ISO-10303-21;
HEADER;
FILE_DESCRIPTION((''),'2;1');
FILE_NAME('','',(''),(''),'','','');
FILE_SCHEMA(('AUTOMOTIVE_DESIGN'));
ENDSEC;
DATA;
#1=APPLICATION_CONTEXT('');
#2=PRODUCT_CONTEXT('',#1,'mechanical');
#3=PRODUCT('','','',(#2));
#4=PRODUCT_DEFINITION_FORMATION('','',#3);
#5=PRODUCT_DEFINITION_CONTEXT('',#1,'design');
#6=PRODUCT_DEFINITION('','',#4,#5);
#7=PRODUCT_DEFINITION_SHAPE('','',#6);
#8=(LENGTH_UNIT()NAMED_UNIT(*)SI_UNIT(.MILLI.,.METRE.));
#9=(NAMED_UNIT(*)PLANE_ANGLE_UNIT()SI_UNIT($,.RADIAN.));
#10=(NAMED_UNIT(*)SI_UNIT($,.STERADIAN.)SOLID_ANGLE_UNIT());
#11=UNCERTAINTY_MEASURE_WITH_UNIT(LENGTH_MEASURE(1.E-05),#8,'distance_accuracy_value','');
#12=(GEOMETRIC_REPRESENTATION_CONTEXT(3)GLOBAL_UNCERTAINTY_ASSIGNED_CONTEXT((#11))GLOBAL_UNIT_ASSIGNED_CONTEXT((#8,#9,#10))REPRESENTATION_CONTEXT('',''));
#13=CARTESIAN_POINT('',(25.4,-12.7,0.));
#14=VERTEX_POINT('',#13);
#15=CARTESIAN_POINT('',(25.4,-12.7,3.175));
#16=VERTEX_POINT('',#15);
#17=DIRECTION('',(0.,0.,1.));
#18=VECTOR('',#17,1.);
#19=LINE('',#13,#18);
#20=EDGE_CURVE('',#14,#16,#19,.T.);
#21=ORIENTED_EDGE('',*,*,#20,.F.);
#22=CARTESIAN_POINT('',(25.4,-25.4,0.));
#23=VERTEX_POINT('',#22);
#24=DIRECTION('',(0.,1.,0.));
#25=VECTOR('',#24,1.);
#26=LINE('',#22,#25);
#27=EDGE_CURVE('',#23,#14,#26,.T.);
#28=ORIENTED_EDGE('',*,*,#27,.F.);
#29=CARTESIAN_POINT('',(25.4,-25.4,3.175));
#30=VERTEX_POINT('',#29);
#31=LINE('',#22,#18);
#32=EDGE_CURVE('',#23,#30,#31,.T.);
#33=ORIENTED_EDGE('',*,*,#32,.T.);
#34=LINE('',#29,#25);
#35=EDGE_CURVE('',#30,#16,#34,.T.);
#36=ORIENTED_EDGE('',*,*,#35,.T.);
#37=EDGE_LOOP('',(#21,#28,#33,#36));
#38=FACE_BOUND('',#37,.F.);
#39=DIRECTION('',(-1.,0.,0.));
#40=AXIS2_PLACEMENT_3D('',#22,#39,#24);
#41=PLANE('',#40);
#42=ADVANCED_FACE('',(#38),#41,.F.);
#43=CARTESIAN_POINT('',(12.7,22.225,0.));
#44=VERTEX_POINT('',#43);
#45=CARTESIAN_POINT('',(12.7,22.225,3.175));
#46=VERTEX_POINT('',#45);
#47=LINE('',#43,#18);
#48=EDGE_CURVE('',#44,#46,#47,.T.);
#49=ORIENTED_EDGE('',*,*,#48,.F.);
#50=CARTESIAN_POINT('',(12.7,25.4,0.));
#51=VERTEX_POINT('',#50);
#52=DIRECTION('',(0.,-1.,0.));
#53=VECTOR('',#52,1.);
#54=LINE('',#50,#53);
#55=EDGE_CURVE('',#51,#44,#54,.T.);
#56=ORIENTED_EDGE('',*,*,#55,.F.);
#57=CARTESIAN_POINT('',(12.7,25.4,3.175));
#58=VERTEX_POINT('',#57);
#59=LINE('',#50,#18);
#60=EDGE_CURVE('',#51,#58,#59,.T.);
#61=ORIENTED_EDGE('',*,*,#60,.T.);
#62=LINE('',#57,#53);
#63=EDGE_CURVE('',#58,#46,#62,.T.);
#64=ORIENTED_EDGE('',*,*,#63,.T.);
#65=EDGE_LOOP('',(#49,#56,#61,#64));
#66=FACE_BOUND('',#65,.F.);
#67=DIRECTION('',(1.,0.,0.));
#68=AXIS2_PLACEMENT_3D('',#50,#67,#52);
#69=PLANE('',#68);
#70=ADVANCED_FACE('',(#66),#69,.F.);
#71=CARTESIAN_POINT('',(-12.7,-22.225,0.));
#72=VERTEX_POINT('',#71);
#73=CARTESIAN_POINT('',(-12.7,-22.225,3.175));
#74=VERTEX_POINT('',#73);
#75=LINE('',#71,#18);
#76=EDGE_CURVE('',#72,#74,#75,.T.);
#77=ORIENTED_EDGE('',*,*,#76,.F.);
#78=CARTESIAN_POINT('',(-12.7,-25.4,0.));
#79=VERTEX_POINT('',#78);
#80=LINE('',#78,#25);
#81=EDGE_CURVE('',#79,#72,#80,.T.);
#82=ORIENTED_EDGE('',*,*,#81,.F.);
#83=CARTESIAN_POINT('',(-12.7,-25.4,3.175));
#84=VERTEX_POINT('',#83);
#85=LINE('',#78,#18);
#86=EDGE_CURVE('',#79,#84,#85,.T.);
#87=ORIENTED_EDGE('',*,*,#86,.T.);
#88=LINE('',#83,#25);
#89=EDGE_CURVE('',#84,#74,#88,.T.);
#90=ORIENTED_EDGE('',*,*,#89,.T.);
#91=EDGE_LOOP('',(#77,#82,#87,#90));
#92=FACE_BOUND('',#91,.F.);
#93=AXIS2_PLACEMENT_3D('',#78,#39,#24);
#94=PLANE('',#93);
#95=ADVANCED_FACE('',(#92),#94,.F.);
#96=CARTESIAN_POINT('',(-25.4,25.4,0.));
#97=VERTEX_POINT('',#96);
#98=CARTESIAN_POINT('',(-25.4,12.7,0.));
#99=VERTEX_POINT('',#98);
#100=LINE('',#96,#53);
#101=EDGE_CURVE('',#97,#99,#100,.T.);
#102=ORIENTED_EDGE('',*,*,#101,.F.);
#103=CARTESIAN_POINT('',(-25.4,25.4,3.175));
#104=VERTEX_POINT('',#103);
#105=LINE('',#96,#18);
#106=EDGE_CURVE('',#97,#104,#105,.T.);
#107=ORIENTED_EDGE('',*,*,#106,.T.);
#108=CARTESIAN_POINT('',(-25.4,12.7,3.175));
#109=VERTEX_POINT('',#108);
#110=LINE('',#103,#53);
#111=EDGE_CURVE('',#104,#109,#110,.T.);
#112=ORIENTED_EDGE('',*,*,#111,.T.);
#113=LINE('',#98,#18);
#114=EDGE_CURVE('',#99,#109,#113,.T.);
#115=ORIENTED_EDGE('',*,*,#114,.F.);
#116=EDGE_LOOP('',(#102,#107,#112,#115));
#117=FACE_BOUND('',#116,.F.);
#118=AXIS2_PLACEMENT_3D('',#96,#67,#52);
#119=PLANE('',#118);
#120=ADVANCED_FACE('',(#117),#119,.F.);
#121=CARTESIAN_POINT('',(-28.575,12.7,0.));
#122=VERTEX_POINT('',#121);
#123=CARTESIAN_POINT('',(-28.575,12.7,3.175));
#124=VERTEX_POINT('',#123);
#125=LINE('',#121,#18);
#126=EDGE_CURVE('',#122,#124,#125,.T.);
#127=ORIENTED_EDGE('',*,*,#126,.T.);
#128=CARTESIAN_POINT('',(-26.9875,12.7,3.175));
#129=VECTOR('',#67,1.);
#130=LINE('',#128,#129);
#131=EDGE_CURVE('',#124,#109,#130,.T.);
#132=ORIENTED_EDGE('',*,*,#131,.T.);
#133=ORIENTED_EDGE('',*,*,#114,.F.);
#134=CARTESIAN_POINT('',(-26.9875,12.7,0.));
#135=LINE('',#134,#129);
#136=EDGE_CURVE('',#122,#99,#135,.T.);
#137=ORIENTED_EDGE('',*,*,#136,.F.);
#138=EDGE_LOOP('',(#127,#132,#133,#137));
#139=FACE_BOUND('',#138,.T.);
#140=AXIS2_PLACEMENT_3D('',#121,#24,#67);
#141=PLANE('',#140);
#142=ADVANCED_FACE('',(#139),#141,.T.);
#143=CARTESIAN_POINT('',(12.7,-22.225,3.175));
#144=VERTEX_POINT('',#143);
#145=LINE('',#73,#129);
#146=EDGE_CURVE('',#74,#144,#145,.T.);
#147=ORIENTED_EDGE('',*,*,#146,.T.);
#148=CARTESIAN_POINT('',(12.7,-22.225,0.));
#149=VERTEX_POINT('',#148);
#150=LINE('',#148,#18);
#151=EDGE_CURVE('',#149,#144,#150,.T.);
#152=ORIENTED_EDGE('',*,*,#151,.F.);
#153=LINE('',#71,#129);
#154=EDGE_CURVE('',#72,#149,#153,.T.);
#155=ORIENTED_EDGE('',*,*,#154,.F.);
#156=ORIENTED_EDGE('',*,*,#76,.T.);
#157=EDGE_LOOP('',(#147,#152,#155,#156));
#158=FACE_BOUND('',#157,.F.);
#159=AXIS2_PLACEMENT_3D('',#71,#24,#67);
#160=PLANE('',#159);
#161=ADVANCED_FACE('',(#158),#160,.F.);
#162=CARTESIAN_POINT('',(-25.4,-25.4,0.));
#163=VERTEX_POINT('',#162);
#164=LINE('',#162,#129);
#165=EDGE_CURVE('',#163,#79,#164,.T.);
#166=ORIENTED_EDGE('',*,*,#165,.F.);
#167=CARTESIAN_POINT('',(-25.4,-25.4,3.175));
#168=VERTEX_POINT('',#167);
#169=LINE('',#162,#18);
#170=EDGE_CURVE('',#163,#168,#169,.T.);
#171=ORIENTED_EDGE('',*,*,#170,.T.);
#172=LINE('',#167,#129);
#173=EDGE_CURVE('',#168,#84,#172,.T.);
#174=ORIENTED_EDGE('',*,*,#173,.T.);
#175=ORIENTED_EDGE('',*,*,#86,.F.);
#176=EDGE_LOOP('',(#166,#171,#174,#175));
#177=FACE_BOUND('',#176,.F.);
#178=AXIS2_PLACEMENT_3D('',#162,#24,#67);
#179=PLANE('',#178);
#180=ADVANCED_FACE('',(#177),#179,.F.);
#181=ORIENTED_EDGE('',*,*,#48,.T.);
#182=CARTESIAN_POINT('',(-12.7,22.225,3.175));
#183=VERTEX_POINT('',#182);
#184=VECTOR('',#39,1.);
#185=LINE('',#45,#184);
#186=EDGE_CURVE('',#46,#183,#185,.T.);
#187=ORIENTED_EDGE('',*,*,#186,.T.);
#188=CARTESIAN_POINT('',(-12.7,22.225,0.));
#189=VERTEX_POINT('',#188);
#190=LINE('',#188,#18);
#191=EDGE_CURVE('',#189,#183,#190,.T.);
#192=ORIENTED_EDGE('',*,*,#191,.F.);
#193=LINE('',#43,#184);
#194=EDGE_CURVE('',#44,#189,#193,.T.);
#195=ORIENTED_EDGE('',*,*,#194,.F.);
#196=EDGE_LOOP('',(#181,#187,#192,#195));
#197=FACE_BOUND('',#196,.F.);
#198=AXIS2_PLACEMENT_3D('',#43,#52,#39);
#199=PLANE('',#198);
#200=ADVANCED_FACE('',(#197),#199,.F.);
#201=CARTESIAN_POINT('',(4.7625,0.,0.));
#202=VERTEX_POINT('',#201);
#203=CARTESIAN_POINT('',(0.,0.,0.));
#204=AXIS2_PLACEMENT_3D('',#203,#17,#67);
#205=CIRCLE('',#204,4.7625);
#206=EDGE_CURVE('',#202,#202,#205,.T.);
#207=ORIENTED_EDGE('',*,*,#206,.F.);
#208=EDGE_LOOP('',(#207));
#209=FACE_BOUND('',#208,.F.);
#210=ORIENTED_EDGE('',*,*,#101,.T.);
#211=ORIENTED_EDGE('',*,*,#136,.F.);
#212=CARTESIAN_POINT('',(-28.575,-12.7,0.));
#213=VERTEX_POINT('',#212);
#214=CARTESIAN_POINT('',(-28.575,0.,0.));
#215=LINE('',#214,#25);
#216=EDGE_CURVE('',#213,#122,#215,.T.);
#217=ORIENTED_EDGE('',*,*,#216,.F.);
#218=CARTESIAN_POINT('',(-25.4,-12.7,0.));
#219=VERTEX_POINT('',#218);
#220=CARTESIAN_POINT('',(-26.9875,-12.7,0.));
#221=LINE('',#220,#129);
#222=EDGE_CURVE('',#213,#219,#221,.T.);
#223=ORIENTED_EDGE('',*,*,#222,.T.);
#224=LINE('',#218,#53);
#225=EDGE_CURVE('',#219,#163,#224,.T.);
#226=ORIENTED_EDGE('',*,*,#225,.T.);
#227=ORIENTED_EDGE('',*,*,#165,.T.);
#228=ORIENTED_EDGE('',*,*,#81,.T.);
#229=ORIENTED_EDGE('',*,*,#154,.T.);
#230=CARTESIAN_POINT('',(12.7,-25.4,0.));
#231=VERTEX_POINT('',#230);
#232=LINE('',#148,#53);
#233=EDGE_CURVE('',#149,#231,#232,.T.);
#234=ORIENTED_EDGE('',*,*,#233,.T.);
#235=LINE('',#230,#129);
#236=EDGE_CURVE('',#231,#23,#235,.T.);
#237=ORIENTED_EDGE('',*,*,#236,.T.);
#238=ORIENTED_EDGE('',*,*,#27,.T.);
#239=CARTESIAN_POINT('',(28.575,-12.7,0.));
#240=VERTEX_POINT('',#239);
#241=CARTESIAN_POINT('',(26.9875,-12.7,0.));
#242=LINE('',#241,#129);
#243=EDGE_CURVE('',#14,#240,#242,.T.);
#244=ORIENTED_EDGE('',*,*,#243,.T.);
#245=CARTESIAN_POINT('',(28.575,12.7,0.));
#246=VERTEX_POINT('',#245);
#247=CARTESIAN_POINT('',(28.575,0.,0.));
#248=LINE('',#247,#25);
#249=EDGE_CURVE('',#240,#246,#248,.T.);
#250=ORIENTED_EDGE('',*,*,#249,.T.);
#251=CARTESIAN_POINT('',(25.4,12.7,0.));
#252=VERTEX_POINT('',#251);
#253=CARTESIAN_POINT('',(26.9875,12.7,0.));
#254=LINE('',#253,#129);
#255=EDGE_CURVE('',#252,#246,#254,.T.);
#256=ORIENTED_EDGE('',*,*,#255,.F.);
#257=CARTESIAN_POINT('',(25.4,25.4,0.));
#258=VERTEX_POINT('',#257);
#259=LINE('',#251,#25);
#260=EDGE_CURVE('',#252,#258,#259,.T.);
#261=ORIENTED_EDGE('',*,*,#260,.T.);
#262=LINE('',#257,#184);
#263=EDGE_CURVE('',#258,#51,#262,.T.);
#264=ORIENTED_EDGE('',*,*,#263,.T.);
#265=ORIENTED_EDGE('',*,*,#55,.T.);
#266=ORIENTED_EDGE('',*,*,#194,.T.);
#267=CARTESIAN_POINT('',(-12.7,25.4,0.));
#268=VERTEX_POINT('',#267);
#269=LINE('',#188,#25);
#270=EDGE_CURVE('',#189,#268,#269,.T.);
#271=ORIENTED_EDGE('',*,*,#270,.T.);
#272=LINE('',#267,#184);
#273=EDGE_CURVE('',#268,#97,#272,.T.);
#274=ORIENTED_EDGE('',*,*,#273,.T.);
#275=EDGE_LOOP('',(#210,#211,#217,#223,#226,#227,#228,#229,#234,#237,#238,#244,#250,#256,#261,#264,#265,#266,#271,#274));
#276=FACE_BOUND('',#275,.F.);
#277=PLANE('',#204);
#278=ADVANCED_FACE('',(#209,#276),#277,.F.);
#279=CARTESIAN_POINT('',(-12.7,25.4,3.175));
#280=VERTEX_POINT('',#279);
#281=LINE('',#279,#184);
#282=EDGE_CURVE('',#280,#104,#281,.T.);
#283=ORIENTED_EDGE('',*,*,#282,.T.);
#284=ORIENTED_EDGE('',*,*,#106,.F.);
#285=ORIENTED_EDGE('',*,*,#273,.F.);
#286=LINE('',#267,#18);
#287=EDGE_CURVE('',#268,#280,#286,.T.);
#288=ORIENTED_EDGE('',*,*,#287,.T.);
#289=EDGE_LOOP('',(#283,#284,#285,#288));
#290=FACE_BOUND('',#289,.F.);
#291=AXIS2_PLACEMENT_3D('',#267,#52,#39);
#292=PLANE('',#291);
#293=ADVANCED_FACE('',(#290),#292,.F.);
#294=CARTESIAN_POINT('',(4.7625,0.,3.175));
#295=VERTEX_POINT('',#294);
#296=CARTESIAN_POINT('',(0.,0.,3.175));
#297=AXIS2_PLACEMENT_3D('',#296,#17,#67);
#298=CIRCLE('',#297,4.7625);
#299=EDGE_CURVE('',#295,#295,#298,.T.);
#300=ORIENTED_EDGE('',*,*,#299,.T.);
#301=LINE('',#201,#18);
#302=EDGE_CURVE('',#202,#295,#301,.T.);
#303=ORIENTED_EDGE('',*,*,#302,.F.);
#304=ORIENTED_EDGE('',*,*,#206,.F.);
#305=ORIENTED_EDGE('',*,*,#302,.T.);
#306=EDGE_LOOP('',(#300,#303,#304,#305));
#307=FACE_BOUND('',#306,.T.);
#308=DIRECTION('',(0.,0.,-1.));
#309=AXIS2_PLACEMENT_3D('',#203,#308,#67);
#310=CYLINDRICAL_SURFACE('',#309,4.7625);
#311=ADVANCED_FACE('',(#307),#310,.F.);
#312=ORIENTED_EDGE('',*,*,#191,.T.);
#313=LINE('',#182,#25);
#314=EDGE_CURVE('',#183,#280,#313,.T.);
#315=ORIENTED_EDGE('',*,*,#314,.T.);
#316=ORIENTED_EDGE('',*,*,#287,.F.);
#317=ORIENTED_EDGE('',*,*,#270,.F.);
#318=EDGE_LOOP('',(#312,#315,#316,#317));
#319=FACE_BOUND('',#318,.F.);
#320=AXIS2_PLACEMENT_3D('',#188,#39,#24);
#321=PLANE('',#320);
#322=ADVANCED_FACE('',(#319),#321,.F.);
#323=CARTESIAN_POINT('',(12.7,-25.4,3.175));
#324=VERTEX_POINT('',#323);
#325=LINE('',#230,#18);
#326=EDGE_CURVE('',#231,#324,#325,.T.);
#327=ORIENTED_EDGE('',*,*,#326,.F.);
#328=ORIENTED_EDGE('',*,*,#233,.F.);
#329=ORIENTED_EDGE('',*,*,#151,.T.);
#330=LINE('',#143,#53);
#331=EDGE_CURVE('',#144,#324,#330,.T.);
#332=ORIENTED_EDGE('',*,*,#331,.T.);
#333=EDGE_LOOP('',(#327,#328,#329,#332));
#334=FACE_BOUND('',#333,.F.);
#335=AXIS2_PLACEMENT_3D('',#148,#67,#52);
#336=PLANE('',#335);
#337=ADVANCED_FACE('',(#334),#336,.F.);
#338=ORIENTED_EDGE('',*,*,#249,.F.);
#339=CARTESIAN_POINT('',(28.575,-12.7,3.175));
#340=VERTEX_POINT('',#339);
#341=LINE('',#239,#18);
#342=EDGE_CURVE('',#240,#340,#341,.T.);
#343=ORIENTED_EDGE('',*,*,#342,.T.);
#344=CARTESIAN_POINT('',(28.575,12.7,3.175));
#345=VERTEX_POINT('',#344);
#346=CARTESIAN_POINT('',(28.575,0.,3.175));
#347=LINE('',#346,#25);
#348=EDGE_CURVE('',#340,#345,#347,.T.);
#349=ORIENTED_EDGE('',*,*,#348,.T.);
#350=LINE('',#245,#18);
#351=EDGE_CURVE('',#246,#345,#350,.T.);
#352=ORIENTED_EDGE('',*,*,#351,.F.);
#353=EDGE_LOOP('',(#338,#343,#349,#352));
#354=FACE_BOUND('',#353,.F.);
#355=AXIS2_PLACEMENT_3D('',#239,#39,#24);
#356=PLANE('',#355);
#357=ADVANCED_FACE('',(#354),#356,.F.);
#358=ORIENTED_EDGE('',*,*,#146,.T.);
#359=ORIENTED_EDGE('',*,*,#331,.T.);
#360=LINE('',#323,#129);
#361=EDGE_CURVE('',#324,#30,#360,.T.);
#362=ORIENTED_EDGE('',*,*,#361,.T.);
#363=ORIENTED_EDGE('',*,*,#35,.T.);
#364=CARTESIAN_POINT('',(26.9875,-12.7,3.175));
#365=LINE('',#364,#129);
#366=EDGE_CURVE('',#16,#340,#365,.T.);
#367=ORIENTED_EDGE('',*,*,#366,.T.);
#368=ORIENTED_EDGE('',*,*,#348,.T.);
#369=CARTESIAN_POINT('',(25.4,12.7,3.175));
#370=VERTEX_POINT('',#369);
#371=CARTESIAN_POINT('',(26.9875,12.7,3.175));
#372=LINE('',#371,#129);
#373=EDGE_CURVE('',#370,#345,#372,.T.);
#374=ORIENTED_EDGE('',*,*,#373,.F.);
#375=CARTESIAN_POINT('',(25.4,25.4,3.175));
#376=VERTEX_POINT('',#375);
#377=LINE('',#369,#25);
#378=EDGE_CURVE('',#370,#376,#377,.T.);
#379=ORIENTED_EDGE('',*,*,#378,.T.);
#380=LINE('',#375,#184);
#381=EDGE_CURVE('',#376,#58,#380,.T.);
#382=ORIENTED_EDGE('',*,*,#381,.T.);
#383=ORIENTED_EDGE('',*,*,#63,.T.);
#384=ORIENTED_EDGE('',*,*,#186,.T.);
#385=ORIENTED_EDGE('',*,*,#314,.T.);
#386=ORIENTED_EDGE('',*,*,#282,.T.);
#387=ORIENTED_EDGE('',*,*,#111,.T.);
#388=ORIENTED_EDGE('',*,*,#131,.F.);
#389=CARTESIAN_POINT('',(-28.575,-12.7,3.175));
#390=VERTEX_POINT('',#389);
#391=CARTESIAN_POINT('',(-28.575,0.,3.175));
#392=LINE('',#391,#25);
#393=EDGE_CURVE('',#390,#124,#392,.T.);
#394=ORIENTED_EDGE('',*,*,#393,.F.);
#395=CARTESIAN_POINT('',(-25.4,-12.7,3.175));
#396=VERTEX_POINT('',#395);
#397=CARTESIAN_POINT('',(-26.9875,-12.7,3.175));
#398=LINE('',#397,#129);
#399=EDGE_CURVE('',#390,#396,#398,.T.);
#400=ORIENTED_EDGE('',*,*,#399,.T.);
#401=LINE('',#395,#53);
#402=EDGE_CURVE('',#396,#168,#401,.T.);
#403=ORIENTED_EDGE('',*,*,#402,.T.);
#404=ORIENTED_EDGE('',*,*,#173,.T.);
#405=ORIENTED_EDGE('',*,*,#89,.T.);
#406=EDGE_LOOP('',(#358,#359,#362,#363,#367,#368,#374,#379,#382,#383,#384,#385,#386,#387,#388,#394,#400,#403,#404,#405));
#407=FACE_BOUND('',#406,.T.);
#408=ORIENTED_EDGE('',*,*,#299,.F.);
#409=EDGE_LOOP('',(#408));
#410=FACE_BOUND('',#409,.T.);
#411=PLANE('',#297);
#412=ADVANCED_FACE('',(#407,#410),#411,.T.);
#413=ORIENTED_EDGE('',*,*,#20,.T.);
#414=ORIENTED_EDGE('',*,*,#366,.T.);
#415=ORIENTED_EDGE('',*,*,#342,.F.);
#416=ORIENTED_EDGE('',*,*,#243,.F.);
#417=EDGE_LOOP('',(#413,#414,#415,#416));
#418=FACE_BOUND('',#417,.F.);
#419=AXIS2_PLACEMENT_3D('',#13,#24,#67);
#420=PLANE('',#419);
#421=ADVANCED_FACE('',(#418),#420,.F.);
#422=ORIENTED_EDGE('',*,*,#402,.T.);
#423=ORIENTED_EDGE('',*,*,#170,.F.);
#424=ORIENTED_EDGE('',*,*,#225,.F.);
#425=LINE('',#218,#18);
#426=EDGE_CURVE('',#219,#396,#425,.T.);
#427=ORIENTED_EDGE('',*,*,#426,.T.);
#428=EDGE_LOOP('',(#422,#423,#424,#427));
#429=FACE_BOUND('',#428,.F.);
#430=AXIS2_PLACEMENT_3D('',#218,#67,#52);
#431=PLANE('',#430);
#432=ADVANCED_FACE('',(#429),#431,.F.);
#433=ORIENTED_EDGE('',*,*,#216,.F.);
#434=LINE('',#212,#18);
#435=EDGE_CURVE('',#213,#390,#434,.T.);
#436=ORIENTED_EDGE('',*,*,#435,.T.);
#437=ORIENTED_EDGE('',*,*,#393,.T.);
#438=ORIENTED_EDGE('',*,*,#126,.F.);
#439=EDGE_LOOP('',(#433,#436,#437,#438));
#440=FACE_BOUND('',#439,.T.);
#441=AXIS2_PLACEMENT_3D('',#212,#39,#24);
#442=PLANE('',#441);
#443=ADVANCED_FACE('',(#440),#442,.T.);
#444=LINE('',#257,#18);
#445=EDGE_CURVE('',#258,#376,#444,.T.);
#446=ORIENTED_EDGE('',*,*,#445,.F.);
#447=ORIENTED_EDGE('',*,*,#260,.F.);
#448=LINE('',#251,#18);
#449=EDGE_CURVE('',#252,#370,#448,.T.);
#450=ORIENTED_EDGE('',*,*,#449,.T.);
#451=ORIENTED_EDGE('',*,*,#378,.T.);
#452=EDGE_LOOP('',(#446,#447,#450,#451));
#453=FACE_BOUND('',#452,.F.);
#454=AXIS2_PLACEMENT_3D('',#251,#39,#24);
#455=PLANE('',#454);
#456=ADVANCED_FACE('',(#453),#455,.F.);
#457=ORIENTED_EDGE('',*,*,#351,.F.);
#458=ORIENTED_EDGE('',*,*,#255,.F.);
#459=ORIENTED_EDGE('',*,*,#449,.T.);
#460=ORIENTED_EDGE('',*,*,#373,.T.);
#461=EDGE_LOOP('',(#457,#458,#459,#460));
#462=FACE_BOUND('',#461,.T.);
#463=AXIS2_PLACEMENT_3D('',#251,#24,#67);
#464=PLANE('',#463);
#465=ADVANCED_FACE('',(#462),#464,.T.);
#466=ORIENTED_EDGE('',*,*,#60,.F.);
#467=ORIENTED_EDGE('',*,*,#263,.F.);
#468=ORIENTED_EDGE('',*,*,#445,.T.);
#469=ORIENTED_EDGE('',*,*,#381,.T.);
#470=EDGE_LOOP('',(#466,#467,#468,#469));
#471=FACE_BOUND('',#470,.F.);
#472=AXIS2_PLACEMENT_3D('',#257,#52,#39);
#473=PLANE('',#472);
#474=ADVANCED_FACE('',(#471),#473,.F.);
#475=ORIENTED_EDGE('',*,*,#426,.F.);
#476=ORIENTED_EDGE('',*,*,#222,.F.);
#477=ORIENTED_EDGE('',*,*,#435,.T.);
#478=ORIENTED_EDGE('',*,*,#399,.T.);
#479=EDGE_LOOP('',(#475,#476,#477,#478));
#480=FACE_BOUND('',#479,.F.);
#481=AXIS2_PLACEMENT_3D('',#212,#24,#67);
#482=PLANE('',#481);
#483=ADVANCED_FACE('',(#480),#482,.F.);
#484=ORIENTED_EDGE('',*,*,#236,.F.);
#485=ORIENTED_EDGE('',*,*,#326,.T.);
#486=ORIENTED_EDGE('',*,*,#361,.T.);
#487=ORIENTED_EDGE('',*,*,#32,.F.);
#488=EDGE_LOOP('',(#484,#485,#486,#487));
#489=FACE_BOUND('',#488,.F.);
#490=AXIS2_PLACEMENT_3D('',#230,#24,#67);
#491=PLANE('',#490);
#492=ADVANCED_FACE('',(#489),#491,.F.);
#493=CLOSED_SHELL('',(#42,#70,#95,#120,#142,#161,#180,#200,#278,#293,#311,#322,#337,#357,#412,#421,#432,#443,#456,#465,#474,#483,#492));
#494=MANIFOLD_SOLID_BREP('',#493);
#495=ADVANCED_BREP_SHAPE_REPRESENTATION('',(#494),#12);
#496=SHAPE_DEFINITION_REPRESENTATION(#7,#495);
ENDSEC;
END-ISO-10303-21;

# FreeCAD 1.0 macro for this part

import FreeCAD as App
import Part
import Sketcher
from FreeCAD import Vector
Q = App.Units.Quantity


def add_polygon(sketch, points):
    """Adds a closed chain of lines whose ends are joined by coincident constraints."""
    first, n = sketch.GeometryCount, len(points)
    for a, b in zip(points, points[1:] + points[:1]):
        sketch.addGeometry(Part.LineSegment(App.Vector(*a, 0), App.Vector(*b, 0)), False)
    for i in range(n):
        sketch.addConstraint(Sketcher.Constraint("Coincident", first + i, 2, first + (i + 1) % n, 1))

doc = App.newDocument("Part")
body = doc.addObject("PartDesign::Body", "Body")

# Sketch on XY plane
sketch1 = doc.addObject("Sketcher::SketchObject", "Sketch")
body.addObject(sketch1)
sketch1.AttachmentSupport = (doc.XY_Plane, [""])
sketch1.MapMode = "FlatFace"
add_polygon(sketch1, [(25.4, 12.7), (25.4, 25.4), (12.7, 25.4), (12.7, 22.2), (-12.7, 22.2), (-12.7, 25.4), (-25.4, 25.4), (-25.4, 12.7), (-28.6, 12.7), (-28.6, -12.7), (-25.4, -12.7), (-25.4, -25.4), (-12.7, -25.4), (-12.7, -22.2), (12.7, -22.2), (12.7, -25.4), (25.4, -25.4), (25.4, -12.7), (28.6, -12.7), (28.6, 12.7)])  # lines 0-19
sketch1.addGeometry(Part.Circle(Vector(0, 0, 0), Vector(0, 0, 1), 4.8), False)  # 20
sketch1.addConstraint([
    Sketcher.Constraint("Vertical", 0),
    Sketcher.Constraint("Horizontal", 1),
    Sketcher.Constraint("Vertical", 2),
    Sketcher.Constraint("Horizontal", 3),
    Sketcher.Constraint("Vertical", 4),
    Sketcher.Constraint("Horizontal", 5),
    Sketcher.Constraint("Vertical", 6),
    Sketcher.Constraint("Horizontal", 7),
    Sketcher.Constraint("Vertical", 8),
    Sketcher.Constraint("Horizontal", 9),
    Sketcher.Constraint("Vertical", 10),
    Sketcher.Constraint("Horizontal", 11),
    Sketcher.Constraint("Vertical", 12),
    Sketcher.Constraint("Horizontal", 13),
    Sketcher.Constraint("Vertical", 14),
    Sketcher.Constraint("Horizontal", 15),
    Sketcher.Constraint("Vertical", 16),
    Sketcher.Constraint("Horizontal", 17),
    Sketcher.Constraint("Vertical", 18),
    Sketcher.Constraint("Horizontal", 19),
    Sketcher.Constraint("Coincident", 20, 3, -1, 1),
    Sketcher.Constraint("Symmetric", 0, 2, 10, 2, -1, 1),
    Sketcher.Constraint("Symmetric", 2, 2, 12, 2, -1, 1),
    Sketcher.Constraint("Symmetric", 4, 2, 14, 2, -1, 1),
    Sketcher.Constraint("Symmetric", 6, 2, 16, 2, -1, 1),
    Sketcher.Constraint("Symmetric", 8, 2, 18, 2, -1, 1),
    Sketcher.Constraint("Symmetric", 1, 2, 4, 2, -2),
    Sketcher.Constraint("Symmetric", 9, 2, 16, 2, -2),
    Sketcher.Constraint("Equal", 15, 0),
    Sketcher.Constraint("Equal", 19, 2),
    Sketcher.Constraint("Equal", 13, 8),
    Sketcher.Constraint("DistanceX", 3, 2, 3, 1, Q("1 in")),
    Sketcher.Constraint("Diameter", 20, Q("0.375 in")),
    Sketcher.Constraint("DistanceX", 1, 2, 1, 1, Q("0.5 in")),
    Sketcher.Constraint("DistanceX", 7, 2, 7, 1, Q("0.125 in")),
])
pad1 = doc.addObject("PartDesign::Pad", "Pad")
body.addObject(pad1)
pad1.Profile = sketch1
pad1.Length = Q("0.125 in")

doc.recompute()
